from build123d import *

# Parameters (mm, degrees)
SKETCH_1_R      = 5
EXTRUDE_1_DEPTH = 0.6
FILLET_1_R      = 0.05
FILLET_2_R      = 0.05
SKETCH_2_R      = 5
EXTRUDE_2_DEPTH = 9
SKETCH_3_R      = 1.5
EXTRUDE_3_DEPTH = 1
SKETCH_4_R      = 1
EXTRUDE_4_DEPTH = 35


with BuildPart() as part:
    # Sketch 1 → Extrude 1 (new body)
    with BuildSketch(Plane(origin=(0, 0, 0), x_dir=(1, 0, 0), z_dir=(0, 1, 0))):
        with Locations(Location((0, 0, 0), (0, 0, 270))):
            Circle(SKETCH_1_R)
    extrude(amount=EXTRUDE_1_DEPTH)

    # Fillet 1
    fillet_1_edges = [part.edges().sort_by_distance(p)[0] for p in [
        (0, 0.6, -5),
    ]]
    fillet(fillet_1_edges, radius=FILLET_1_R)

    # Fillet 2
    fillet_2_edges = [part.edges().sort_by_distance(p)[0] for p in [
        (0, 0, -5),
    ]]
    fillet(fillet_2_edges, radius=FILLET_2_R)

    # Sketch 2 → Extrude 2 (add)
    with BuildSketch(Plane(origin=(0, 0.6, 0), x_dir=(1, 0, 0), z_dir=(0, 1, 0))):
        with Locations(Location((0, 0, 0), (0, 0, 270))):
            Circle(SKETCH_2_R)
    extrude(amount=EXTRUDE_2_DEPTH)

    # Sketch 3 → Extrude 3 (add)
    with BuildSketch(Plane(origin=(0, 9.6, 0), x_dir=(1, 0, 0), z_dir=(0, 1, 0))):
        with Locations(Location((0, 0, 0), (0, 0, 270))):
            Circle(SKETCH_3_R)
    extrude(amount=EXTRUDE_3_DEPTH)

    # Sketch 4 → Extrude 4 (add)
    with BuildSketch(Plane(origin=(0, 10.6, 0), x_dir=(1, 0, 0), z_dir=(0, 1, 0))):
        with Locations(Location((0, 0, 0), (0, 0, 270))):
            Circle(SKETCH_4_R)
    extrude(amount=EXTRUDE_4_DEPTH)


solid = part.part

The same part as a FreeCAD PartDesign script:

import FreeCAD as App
import Part
import Sketcher
from FreeCAD import Vector


def edges_at(feature, points):
    """Names of the edges that pass closest to the given points."""
    edges = feature.Shape.Edges
    near = lambda p: min(range(len(edges)), key=lambda i: edges[i].distToShape(Part.Vertex(*p))[0])
    return sorted({f"Edge{near(p) + 1}" for p in points})

doc = App.newDocument("Part")
body = doc.addObject("PartDesign::Body", "Body")

sketch1 = doc.addObject("Sketcher::SketchObject", "Sketch")
body.addObject(sketch1)
sketch1.AttachmentSupport = (doc.XZ_Plane, [""])
sketch1.MapMode = "FlatFace"
sketch1.addGeometry(Part.Circle(Vector(0, 0, 0), Vector(0, 0, 1), 5), False)
sketch1.addConstraint([
    Sketcher.Constraint("Coincident", 0, 3, -1, 1),
    Sketcher.Constraint("Diameter", 0, 10.0),
])
pad1 = doc.addObject("PartDesign::Pad", "Pad")
body.addObject(pad1)
pad1.Profile = sketch1
pad1.Length = 0.6
pad1.Reversed = True
doc.recompute()

fillet = doc.addObject("PartDesign::Fillet", "Fillet")
body.addObject(fillet)
fillet.Base = (pad1, edges_at(pad1, [(0, 0.6, -5)]))
fillet.Radius = 0.05
doc.recompute()

fillet2 = doc.addObject("PartDesign::Fillet", "Fillet001")
body.addObject(fillet2)
fillet2.Base = (fillet, edges_at(fillet, [(0, 0, -5)]))
fillet2.Radius = 0.05

sketch2 = doc.addObject("Sketcher::SketchObject", "Sketch001")
body.addObject(sketch2)
sketch2.AttachmentSupport = (doc.XZ_Plane, [""])
sketch2.MapMode = "FlatFace"
sketch2.AttachmentOffset = App.Placement(Vector(0, 0, -0.6), App.Rotation())
sketch2.addGeometry(Part.Circle(Vector(0, 0, 0), Vector(0, 0, 1), 5), False)
sketch2.addConstraint([
    Sketcher.Constraint("Coincident", 0, 3, -1, 1),
    Sketcher.Constraint("Diameter", 0, 10.0),
])
pad2 = doc.addObject("PartDesign::Pad", "Pad001")
body.addObject(pad2)
pad2.Profile = sketch2
pad2.Length = 9
pad2.Reversed = True

sketch3 = doc.addObject("Sketcher::SketchObject", "Sketch002")
body.addObject(sketch3)
sketch3.AttachmentSupport = (doc.XZ_Plane, [""])
sketch3.MapMode = "FlatFace"
sketch3.AttachmentOffset = App.Placement(Vector(0, 0, -9.6), App.Rotation())
sketch3.addGeometry(Part.Circle(Vector(0, 0, 0), Vector(0, 0, 1), 1.5), False)
sketch3.addConstraint([
    Sketcher.Constraint("Coincident", 0, 3, -1, 1),
    Sketcher.Constraint("Diameter", 0, 3.0),
])
pad3 = doc.addObject("PartDesign::Pad", "Pad002")
body.addObject(pad3)
pad3.Profile = sketch3
pad3.Length = 1
pad3.Reversed = True

sketch4 = doc.addObject("Sketcher::SketchObject", "Sketch003")
body.addObject(sketch4)
sketch4.AttachmentSupport = (doc.XZ_Plane, [""])
sketch4.MapMode = "FlatFace"
sketch4.AttachmentOffset = App.Placement(Vector(0, 0, -10.6), App.Rotation())
sketch4.addGeometry(Part.Circle(Vector(0, 0, 0), Vector(0, 0, 1), 1), False)
sketch4.addConstraint([
    Sketcher.Constraint("Coincident", 0, 3, -1, 1),
    Sketcher.Constraint("Diameter", 0, 2.0),
])
pad4 = doc.addObject("PartDesign::Pad", "Pad003")
body.addObject(pad4)
pad4.Profile = sketch4
pad4.Length = 35
pad4.Reversed = True

doc.recompute()
